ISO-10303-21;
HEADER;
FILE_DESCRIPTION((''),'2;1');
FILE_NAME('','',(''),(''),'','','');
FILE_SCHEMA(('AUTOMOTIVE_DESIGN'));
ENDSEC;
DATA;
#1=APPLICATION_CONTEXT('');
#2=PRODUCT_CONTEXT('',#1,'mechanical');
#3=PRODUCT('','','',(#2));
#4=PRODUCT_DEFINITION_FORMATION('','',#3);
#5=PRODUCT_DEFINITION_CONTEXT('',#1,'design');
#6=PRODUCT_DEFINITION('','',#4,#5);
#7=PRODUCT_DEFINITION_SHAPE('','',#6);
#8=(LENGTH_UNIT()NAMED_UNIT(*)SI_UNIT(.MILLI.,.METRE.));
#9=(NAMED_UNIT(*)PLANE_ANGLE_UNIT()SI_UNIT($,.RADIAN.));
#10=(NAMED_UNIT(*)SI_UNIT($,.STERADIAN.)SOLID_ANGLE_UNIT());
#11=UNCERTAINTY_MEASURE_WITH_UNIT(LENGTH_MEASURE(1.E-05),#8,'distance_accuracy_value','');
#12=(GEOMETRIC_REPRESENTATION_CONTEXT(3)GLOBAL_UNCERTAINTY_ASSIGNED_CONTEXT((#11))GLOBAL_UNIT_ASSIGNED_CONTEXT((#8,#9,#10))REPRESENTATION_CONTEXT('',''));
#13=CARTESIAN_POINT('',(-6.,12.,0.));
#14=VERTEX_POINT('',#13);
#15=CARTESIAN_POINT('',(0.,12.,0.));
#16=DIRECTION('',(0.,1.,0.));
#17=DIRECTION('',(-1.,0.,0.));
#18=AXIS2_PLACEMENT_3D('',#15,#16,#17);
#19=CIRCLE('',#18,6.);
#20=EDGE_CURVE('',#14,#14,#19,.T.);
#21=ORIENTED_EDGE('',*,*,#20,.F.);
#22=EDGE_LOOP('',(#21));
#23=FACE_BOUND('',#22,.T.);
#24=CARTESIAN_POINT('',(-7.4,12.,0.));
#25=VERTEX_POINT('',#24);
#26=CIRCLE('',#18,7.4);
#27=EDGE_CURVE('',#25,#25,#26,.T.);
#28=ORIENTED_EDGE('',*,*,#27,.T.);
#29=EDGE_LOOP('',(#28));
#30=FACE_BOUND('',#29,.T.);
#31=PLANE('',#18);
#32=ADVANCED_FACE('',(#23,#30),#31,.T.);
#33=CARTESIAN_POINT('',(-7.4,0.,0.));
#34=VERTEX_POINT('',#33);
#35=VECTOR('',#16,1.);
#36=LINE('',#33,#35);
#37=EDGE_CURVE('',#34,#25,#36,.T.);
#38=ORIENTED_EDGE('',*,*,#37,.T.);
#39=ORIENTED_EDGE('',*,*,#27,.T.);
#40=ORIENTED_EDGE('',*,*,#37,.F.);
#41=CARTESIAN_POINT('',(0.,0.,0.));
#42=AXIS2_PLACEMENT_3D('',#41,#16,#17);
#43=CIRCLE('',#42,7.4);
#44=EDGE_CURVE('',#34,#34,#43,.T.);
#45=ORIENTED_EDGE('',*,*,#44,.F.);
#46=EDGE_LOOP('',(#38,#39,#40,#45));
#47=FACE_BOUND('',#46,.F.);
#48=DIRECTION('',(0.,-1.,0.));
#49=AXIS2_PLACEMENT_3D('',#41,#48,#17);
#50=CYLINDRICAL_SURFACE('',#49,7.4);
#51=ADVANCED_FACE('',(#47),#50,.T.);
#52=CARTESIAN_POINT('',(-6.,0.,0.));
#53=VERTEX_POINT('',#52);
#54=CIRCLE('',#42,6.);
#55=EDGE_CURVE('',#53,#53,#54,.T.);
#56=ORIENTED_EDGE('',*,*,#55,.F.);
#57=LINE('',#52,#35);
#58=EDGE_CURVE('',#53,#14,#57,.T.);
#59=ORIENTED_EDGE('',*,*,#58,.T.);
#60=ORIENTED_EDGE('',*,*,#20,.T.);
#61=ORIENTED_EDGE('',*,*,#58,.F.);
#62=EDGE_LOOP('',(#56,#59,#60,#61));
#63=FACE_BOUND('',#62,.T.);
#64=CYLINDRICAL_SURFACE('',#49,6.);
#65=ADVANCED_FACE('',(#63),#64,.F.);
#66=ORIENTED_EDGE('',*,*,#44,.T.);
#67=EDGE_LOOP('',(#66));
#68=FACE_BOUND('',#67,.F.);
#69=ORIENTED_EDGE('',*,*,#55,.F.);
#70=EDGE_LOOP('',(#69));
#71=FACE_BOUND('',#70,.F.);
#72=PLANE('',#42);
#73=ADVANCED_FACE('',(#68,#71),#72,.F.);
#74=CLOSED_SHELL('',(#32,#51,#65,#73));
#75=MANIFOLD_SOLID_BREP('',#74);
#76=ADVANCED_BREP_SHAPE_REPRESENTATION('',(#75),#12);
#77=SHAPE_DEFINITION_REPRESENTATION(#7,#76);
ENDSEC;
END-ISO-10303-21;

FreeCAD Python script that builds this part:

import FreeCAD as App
import Part
import Sketcher
from FreeCAD import Vector
Q = App.Units.Quantity

doc = App.newDocument("Part")
body = doc.addObject("PartDesign::Body", "Body")

sketch1 = doc.addObject("Sketcher::SketchObject", "Sketch")
body.addObject(sketch1)
sketch1.AttachmentSupport = (doc.XZ_Plane, [""])
sketch1.MapMode = "FlatFace"
sketch1.addGeometry([
    Part.Circle(Vector(0, 0, 0), Vector(0, 0, 1), 7),
    Part.Circle(Vector(0, 0, 0), Vector(0, 0, 1), 6),
], False)
sketch1.addConstraint([
    Sketcher.Constraint("Coincident", 0, 3, -1, 1),
    Sketcher.Constraint("Coincident", 1, 3, -1, 1),
    Sketcher.Constraint("Diameter", 1, Q("12 mm")),
    Sketcher.Constraint("Diameter", 0, Q("14.8 mm")),
])
pad1 = doc.addObject("PartDesign::Pad", "Pad")
body.addObject(pad1)
pad1.Profile = sketch1
pad1.Length = 12
pad1.Reversed = True

doc.recompute()
